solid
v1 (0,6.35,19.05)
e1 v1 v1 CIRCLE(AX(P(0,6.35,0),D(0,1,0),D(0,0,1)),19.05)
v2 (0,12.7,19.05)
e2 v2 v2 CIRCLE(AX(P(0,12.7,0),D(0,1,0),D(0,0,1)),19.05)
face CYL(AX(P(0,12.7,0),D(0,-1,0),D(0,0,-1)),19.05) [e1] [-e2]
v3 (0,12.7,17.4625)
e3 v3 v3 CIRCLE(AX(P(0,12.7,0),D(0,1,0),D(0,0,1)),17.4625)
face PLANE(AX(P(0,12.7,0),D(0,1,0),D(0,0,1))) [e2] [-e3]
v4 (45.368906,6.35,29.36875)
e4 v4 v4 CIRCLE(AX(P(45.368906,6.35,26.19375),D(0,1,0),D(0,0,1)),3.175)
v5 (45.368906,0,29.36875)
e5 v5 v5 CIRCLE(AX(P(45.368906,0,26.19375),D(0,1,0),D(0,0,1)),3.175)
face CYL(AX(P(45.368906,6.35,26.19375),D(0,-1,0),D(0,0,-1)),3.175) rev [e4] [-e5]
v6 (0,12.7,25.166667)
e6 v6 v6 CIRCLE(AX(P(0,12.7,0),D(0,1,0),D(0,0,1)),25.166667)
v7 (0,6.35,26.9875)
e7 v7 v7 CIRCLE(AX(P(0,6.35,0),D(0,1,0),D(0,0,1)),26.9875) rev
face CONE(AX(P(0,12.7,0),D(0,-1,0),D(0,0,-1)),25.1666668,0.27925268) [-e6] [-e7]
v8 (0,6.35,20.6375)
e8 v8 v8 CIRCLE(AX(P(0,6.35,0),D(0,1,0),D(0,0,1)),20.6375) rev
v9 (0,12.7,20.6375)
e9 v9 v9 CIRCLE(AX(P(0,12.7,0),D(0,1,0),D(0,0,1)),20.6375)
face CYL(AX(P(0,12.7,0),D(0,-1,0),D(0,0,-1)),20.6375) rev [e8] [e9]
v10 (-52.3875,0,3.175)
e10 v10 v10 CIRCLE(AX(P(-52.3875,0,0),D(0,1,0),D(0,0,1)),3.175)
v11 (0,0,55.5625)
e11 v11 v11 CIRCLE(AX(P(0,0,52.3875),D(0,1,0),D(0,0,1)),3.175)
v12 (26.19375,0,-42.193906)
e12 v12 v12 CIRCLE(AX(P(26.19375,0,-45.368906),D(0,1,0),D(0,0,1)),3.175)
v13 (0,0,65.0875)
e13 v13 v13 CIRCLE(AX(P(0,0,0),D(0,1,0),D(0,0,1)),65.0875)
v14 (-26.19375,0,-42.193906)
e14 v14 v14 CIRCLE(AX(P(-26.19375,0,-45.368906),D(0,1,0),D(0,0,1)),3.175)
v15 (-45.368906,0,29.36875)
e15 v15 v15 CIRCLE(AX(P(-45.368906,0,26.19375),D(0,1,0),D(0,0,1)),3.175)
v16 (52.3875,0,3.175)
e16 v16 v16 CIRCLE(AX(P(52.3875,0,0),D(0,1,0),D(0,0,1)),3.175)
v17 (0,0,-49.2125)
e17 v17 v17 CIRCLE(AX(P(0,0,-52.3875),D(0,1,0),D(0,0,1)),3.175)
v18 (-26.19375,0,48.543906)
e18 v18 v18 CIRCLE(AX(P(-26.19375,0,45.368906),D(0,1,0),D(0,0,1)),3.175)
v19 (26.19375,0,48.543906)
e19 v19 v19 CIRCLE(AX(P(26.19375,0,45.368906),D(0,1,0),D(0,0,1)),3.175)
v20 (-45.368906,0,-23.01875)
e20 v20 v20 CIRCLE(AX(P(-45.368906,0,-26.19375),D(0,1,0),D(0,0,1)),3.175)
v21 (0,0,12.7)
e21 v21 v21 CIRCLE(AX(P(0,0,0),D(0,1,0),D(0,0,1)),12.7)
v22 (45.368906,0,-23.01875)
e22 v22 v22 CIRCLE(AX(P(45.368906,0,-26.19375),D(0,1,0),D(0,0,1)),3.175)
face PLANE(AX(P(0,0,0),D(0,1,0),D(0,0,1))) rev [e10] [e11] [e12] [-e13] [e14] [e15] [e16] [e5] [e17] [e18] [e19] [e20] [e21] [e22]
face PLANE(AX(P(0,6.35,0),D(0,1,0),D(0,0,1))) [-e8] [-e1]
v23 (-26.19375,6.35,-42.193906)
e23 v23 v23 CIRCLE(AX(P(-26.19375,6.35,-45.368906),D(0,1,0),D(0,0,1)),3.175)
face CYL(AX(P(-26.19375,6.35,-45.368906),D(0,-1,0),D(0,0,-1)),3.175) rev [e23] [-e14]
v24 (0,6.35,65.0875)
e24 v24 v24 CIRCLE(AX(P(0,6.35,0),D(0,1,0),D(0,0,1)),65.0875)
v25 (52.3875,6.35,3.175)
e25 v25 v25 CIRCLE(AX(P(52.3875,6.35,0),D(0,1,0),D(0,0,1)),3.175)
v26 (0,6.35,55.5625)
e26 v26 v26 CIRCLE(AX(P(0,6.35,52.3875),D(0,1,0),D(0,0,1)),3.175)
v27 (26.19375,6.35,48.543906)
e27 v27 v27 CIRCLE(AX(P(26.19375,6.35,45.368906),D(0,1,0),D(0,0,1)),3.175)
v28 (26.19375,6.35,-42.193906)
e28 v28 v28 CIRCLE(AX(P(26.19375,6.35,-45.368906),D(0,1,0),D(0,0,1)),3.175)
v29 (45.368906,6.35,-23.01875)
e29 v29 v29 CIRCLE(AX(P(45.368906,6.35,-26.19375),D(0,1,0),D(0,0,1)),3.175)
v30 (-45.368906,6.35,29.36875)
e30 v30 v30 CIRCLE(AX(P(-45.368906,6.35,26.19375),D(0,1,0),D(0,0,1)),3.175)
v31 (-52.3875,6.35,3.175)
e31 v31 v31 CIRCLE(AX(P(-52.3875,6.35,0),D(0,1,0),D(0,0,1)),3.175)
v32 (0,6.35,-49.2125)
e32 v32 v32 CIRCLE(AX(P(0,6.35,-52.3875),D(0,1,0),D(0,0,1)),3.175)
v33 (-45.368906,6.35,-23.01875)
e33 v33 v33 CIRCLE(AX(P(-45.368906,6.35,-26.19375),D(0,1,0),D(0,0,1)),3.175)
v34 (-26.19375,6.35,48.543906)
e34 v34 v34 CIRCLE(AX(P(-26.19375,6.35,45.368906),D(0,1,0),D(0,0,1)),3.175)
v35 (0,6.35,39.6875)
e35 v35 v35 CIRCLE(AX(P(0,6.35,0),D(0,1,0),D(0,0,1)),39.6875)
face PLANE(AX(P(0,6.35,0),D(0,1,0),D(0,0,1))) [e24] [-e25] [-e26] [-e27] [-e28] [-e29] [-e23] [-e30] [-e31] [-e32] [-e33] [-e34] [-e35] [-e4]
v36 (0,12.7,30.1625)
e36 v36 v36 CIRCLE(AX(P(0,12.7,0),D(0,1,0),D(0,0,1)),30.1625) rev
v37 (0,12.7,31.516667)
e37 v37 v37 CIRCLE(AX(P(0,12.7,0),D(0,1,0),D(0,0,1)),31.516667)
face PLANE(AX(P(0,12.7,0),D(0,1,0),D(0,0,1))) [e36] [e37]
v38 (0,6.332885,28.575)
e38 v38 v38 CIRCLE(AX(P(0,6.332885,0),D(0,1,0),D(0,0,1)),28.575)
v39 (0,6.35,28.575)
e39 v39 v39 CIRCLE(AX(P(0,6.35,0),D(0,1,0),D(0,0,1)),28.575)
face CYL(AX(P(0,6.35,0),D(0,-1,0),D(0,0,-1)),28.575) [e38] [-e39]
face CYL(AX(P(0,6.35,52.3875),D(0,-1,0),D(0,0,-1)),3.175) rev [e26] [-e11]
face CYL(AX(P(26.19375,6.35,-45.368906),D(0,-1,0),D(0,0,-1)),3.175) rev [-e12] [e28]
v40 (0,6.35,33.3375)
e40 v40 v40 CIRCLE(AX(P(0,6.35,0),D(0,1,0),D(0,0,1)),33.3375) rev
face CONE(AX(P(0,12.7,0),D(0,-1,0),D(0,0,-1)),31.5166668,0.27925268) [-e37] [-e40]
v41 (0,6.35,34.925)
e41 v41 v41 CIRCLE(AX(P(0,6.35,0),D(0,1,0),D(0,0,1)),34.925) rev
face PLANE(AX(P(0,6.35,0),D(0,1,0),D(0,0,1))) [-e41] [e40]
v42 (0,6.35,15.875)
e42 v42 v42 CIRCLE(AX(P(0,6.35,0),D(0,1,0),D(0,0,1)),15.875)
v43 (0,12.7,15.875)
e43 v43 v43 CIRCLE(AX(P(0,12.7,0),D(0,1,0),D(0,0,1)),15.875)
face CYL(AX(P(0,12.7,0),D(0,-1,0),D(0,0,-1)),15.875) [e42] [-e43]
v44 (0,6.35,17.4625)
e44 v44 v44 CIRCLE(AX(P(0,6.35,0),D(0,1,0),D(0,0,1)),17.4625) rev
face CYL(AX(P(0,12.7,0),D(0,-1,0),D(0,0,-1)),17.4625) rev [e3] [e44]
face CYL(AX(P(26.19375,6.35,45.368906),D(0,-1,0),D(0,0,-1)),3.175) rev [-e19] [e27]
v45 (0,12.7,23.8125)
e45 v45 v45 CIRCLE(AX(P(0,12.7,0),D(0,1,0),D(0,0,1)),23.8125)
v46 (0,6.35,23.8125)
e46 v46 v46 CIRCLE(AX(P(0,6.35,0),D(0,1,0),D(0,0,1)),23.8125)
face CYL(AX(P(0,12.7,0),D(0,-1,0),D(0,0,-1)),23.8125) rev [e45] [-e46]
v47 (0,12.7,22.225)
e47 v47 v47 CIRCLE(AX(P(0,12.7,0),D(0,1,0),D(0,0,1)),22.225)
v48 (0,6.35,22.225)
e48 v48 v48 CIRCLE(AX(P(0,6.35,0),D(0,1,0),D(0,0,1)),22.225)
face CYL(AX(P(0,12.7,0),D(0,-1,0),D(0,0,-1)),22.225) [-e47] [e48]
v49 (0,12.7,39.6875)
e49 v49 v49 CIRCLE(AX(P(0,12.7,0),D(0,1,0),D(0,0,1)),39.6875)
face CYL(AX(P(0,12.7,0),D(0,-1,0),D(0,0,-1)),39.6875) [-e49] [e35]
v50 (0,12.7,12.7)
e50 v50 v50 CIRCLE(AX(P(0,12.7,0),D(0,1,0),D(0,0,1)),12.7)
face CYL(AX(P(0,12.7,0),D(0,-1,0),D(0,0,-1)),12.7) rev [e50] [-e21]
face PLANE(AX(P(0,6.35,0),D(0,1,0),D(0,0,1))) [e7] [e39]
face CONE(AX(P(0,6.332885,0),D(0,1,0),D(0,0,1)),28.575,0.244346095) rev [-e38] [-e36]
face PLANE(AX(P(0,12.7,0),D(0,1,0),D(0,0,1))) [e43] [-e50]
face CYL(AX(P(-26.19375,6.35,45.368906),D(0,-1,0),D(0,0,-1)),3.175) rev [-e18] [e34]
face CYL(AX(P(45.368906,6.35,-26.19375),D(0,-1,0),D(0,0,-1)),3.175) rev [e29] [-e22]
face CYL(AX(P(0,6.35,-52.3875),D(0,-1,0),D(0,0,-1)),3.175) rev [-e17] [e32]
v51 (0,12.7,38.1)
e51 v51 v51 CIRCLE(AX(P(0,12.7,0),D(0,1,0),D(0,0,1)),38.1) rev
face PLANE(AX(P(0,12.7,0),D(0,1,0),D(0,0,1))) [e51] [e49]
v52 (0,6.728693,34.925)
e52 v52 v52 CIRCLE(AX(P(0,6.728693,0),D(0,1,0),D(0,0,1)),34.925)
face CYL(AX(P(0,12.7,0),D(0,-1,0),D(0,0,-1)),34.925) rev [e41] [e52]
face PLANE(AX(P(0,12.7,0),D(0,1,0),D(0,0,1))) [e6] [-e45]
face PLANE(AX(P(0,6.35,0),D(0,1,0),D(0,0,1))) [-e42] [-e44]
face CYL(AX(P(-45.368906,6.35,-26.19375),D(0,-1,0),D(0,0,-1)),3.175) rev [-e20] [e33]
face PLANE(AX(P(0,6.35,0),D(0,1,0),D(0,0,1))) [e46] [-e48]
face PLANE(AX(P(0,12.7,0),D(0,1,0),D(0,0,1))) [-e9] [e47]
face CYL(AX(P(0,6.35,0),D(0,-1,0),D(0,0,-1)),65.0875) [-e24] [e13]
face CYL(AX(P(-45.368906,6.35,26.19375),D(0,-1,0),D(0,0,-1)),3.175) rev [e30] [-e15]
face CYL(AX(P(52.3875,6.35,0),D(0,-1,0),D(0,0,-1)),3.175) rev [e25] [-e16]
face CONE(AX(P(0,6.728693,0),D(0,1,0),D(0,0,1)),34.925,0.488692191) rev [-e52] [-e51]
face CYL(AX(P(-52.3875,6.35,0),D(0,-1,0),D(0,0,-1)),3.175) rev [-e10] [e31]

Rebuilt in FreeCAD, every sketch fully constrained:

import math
import FreeCAD as App
import Part
import Sketcher

V = App.Vector
Q = App.Units.Quantity


def edges_at(feature, points):
    """Names of the edges that pass closest to the given points."""
    edges = feature.Shape.Edges
    near = lambda p: min(range(len(edges)), key=lambda i: edges[i].distToShape(Part.Vertex(*p))[0])
    return sorted({f"Edge{near(p) + 1}" for p in points})

doc = App.newDocument("Part")
body = doc.addObject("PartDesign::Body", "Body")
body.AllowCompound = True

sketch1 = body.newObject("Sketcher::SketchObject", "Sketch")
sketch1.AttachmentSupport = (doc.getObject("XZ_Plane"), [""])
sketch1.MapMode = "FlatFace"
sketch1.addGeometry([
    Part.ArcOfCircle(Part.Circle(V(0, 0, 0), V(0, 0, 1), 39.6875), math.radians(23.578178), math.radians(336.421822)),
    Part.ArcOfCircle(Part.Circle(V(0, 0, 0), V(0, 0, 1), 39.6875), math.radians(18.662925), math.radians(23.578178)),
    Part.ArcOfCircle(Part.Circle(V(0, 0, 0), V(0, 0, 1), 39.6875), math.radians(0), math.radians(18.662925)),
    Part.ArcOfCircle(Part.Circle(V(0, 0, 0), V(0, 0, 1), 39.6875), math.radians(-18.662925), math.radians(0)),
    Part.ArcOfCircle(Part.Circle(V(0, 0, 0), V(0, 0, 1), 39.6875), math.radians(-23.578178), math.radians(-18.662925)),
    Part.ArcOfCircle(Part.Circle(V(0, 0, 0), V(0, 0, 1), 34.925), math.radians(-21.323686), math.radians(0)),
    Part.ArcOfCircle(Part.Circle(V(0, 0, 0), V(0, 0, 1), 34.925), math.radians(0), math.radians(21.323686)),
    Part.ArcOfCircle(Part.Circle(V(0, 0, 0), V(0, 0, 1), 34.925), math.radians(21.323686), math.radians(27.035692)),
    Part.ArcOfCircle(Part.Circle(V(0, 0, 0), V(0, 0, 1), 34.925), math.radians(27.035692), math.radians(332.964308)),
    Part.ArcOfCircle(Part.Circle(V(0, 0, 0), V(0, 0, 1), 34.925), math.radians(-27.035692), math.radians(-21.323686)),
    Part.ArcOfCircle(Part.Circle(V(0, 0, 0), V(0, 0, 1), 33.3375), math.radians(28.43689), math.radians(331.56311)),
    Part.ArcOfCircle(Part.Circle(V(0, 0, 0), V(0, 0, 1), 33.3375), math.radians(22.392688), math.radians(28.43689)),
    Part.ArcOfCircle(Part.Circle(V(0, 0, 0), V(0, 0, 1), 33.3375), math.radians(0), math.radians(22.392688)),
    Part.ArcOfCircle(Part.Circle(V(0, 0, 0), V(0, 0, 1), 33.3375), math.radians(-22.392688), math.radians(0)),
    Part.ArcOfCircle(Part.Circle(V(0, 0, 0), V(0, 0, 1), 33.3375), math.radians(-28.43689), math.radians(-22.392688)),
    Part.ArcOfCircle(Part.Circle(V(0, 0, 0), V(0, 0, 1), 28.575), math.radians(-26.3878), math.radians(0)),
    Part.ArcOfCircle(Part.Circle(V(0, 0, 0), V(0, 0, 1), 28.575), math.radians(0), math.radians(26.3878)),
    Part.ArcOfCircle(Part.Circle(V(0, 0, 0), V(0, 0, 1), 28.575), math.radians(26.3878), math.radians(33.748989)),
    Part.ArcOfCircle(Part.Circle(V(0, 0, 0), V(0, 0, 1), 28.575), math.radians(33.748989), math.radians(326.251011)),
    Part.ArcOfCircle(Part.Circle(V(0, 0, 0), V(0, 0, 1), 28.575), math.radians(-33.748989), math.radians(-26.3878)),
    Part.ArcOfCircle(Part.Circle(V(0, 0, 0), V(0, 0, 1), 26.9875), math.radians(36.031879), math.radians(323.968121)),
    Part.ArcOfCircle(Part.Circle(V(0, 0, 0), V(0, 0, 1), 26.9875), math.radians(28.072487), math.radians(36.031879)),
    Part.ArcOfCircle(Part.Circle(V(0, 0, 0), V(0, 0, 1), 26.9875), math.radians(0), math.radians(28.072487)),
    Part.ArcOfCircle(Part.Circle(V(0, 0, 0), V(0, 0, 1), 26.9875), math.radians(-28.072487), math.radians(0)),
    Part.ArcOfCircle(Part.Circle(V(0, 0, 0), V(0, 0, 1), 26.9875), math.radians(-36.031879), math.radians(-28.072487)),
    Part.ArcOfCircle(Part.Circle(V(0, 0, 0), V(0, 0, 1), 23.8125), math.radians(-32.230953), math.radians(0)),
    Part.ArcOfCircle(Part.Circle(V(0, 0, 0), V(0, 0, 1), 23.8125), math.radians(0), math.radians(32.230953)),
    Part.ArcOfCircle(Part.Circle(V(0, 0, 0), V(0, 0, 1), 23.8125), math.radians(32.230953), math.radians(41.810315)),
    Part.ArcOfCircle(Part.Circle(V(0, 0, 0), V(0, 0, 1), 23.8125), math.radians(41.810315), math.radians(318.189685)),
    Part.ArcOfCircle(Part.Circle(V(0, 0, 0), V(0, 0, 1), 23.8125), math.radians(-41.810315), math.radians(-32.230953)),
    Part.ArcOfCircle(Part.Circle(V(0, 0, 0), V(0, 0, 1), 15.875), math.radians(90), math.radians(270)),
    Part.ArcOfCircle(Part.Circle(V(0, 0, 0), V(0, 0, 1), 15.875), math.radians(53.130102), math.radians(90)),
    Part.ArcOfCircle(Part.Circle(V(0, 0, 0), V(0, 0, 1), 15.875), math.radians(0), math.radians(53.130102)),
    Part.ArcOfCircle(Part.Circle(V(0, 0, 0), V(0, 0, 1), 15.875), math.radians(-53.130102), math.radians(0)),
    Part.ArcOfCircle(Part.Circle(V(0, 0, 0), V(0, 0, 1), 15.875), math.radians(-90), math.radians(-53.130102)),
    Part.ArcOfCircle(Part.Circle(V(0, 0, 0), V(0, 0, 1), 12.7), math.radians(0), math.radians(90)),
    Part.ArcOfCircle(Part.Circle(V(0, 0, 0), V(0, 0, 1), 12.7), math.radians(90), math.radians(270)),
    Part.ArcOfCircle(Part.Circle(V(0, 0, 0), V(0, 0, 1), 12.7), math.radians(-90), math.radians(0)),
], False)
sketch1.addConstraint([
    Sketcher.Constraint("Tangent", 0, 1, 1, 2),
    Sketcher.Constraint("Tangent", 1, 1, 2, 2),
    Sketcher.Constraint("Tangent", 2, 1, 3, 2),
    Sketcher.Constraint("Tangent", 3, 1, 4, 2),
    Sketcher.Constraint("Tangent", 4, 1, 0, 2),
    Sketcher.Constraint("Tangent", 5, 2, 6, 1),
    Sketcher.Constraint("Tangent", 6, 2, 7, 1),
    Sketcher.Constraint("Tangent", 7, 2, 8, 1),
    Sketcher.Constraint("Tangent", 8, 2, 9, 1),
    Sketcher.Constraint("Tangent", 9, 2, 5, 1),
    Sketcher.Constraint("Tangent", 10, 1, 11, 2),
    Sketcher.Constraint("Tangent", 11, 1, 12, 2),
    Sketcher.Constraint("Tangent", 12, 1, 13, 2),
    Sketcher.Constraint("Tangent", 13, 1, 14, 2),
    Sketcher.Constraint("Tangent", 14, 1, 10, 2),
    Sketcher.Constraint("Tangent", 15, 2, 16, 1),
    Sketcher.Constraint("Tangent", 16, 2, 17, 1),
    Sketcher.Constraint("Tangent", 17, 2, 18, 1),
    Sketcher.Constraint("Tangent", 18, 2, 19, 1),
    Sketcher.Constraint("Tangent", 19, 2, 15, 1),
    Sketcher.Constraint("Tangent", 20, 1, 21, 2),
    Sketcher.Constraint("Tangent", 21, 1, 22, 2),
    Sketcher.Constraint("Tangent", 22, 1, 23, 2),
    Sketcher.Constraint("Tangent", 23, 1, 24, 2),
    Sketcher.Constraint("Tangent", 24, 1, 20, 2),
    Sketcher.Constraint("Tangent", 25, 2, 26, 1),
    Sketcher.Constraint("Tangent", 26, 2, 27, 1),
    Sketcher.Constraint("Tangent", 27, 2, 28, 1),
    Sketcher.Constraint("Tangent", 28, 2, 29, 1),
    Sketcher.Constraint("Tangent", 29, 2, 25, 1),
    Sketcher.Constraint("Tangent", 30, 1, 31, 2),
    Sketcher.Constraint("Tangent", 31, 1, 32, 2),
    Sketcher.Constraint("Tangent", 32, 1, 33, 2),
    Sketcher.Constraint("Tangent", 33, 1, 34, 2),
    Sketcher.Constraint("Tangent", 34, 1, 30, 2),
    Sketcher.Constraint("Tangent", 35, 2, 36, 1),
    Sketcher.Constraint("Tangent", 36, 2, 37, 1),
    Sketcher.Constraint("Tangent", 37, 2, 35, 1),
    Sketcher.Constraint("Coincident", 0, 3, -1, 1),
    Sketcher.Constraint("Coincident", 2, 3, -1, 1),
    Sketcher.Constraint("Coincident", 5, 3, -1, 1),
    Sketcher.Constraint("Coincident", 7, 3, -1, 1),
    Sketcher.Constraint("Coincident", 10, 3, -1, 1),
    Sketcher.Constraint("Coincident", 12, 3, -1, 1),
    Sketcher.Constraint("Coincident", 15, 3, -1, 1),
    Sketcher.Constraint("Coincident", 17, 3, -1, 1),
    Sketcher.Constraint("Coincident", 20, 3, -1, 1),
    Sketcher.Constraint("Coincident", 22, 3, -1, 1),
    Sketcher.Constraint("Coincident", 25, 3, -1, 1),
    Sketcher.Constraint("Coincident", 27, 3, -1, 1),
    Sketcher.Constraint("Coincident", 30, 3, -1, 1),
    Sketcher.Constraint("Coincident", 32, 3, -1, 1),
    Sketcher.Constraint("Coincident", 35, 3, -1, 1),
    Sketcher.Constraint("PointOnObject", 2, 1, -1),
    Sketcher.Constraint("PointOnObject", 5, 2, -1),
    Sketcher.Constraint("PointOnObject", 12, 1, -1),
    Sketcher.Constraint("PointOnObject", 15, 2, -1),
    Sketcher.Constraint("PointOnObject", 22, 1, -1),
    Sketcher.Constraint("PointOnObject", 25, 2, -1),
    Sketcher.Constraint("PointOnObject", 30, 1, -2),
    Sketcher.Constraint("PointOnObject", 32, 1, -1),
    Sketcher.Constraint("PointOnObject", 34, 1, -2),
    Sketcher.Constraint("PointOnObject", 35, 2, -2),
    Sketcher.Constraint("PointOnObject", 36, 2, -2),
    Sketcher.Constraint("PointOnObject", 37, 2, -1),
    Sketcher.Constraint("Horizontal", 1, 1, 6, 2),
    Sketcher.Constraint("Horizontal", 0, 1, 7, 2),
    Sketcher.Constraint("Horizontal", 4, 1, 8, 2),
    Sketcher.Constraint("Horizontal", 3, 1, 9, 2),
    Sketcher.Constraint("Horizontal", 7, 2, 10, 1),
    Sketcher.Constraint("Horizontal", 6, 2, 11, 1),
    Sketcher.Constraint("Horizontal", 9, 2, 13, 1),
    Sketcher.Constraint("Horizontal", 8, 2, 14, 1),
    Sketcher.Constraint("Horizontal", 11, 1, 16, 2),
    Sketcher.Constraint("Horizontal", 10, 1, 17, 2),
    Sketcher.Constraint("Horizontal", 14, 1, 18, 2),
    Sketcher.Constraint("Horizontal", 13, 1, 19, 2),
    Sketcher.Constraint("Horizontal", 17, 2, 20, 1),
    Sketcher.Constraint("Horizontal", 16, 2, 21, 1),
    Sketcher.Constraint("Horizontal", 19, 2, 23, 1),
    Sketcher.Constraint("Horizontal", 18, 2, 24, 1),
    Sketcher.Constraint("Horizontal", 21, 1, 26, 2),
    Sketcher.Constraint("Horizontal", 20, 1, 27, 2),
    Sketcher.Constraint("Horizontal", 24, 1, 28, 2),
    Sketcher.Constraint("Horizontal", 23, 1, 29, 2),
    Sketcher.Constraint("Horizontal", 27, 2, 30, 1),
    Sketcher.Constraint("Horizontal", 26, 2, 31, 1),
    Sketcher.Constraint("Horizontal", 29, 2, 33, 1),
    Sketcher.Constraint("Horizontal", 28, 2, 34, 1),
    Sketcher.Constraint("Horizontal", 31, 1, 35, 2),
    Sketcher.Constraint("Horizontal", 33, 1, 36, 2),
    Sketcher.Constraint("Vertical", 23, 1, 25, 2),
    Sketcher.Constraint("Radius", 35, Q("0.5 in")),
    Sketcher.Constraint("Radius", 0, Q("1.5625 in")),
    Sketcher.Constraint("Radius", 5, Q("1.375 in")),
    Sketcher.Constraint("Radius", 10, Q("1.3125 in")),
    Sketcher.Constraint("Radius", 15, Q("1.125 in")),
    Sketcher.Constraint("Radius", 20, Q("1.0625 in")),
    Sketcher.Constraint("Radius", 30, Q("0.625 in")),
])
pad1 = body.newObject("PartDesign::Pad", "Pad")
pad1.Profile = sketch1
pad1.Length = Q("0.5 in")
pad1.Reversed = True
doc.recompute()

chamfer = body.newObject("PartDesign::Chamfer", "Chamfer")
chamfer.Base = (pad1, edges_at(pad1, [(-34.925, 12.7, 0)]))
chamfer.ChamferType = "Two distances"
chamfer.Size = Q("0.125 in")
chamfer.Size2 = 5.971307
doc.recompute()

chamfer2 = body.newObject("PartDesign::Chamfer", "Chamfer001")
chamfer2.Base = (chamfer, edges_at(chamfer, [(-33.337, 12.7, 0)]))
chamfer2.ChamferType = "Two distances"
chamfer2.Size = Q("0.25 in")
chamfer2.Size2 = 1.820833
chamfer2.FlipDirection = True
doc.recompute()

chamfer3 = body.newObject("PartDesign::Chamfer", "Chamfer002")
chamfer3.Base = (chamfer2, edges_at(chamfer2, [(-28.575, 12.7, 0)]))
chamfer3.ChamferType = "Two distances"
chamfer3.Size = Q("0.0625 in")
chamfer3.Size2 = 6.367115
doc.recompute()

chamfer4 = body.newObject("PartDesign::Chamfer", "Chamfer003")
chamfer4.Base = (chamfer3, edges_at(chamfer3, [(-26.988, 12.7, 0)]))
chamfer4.ChamferType = "Two distances"
chamfer4.Size = Q("0.25 in")
chamfer4.Size2 = 1.820833
chamfer4.FlipDirection = True

sketch2 = body.newObject("Sketcher::SketchObject", "Sketch001")
sketch2.AttachmentSupport = (doc.getObject("XZ_Plane"), [""])
sketch2.MapMode = "FlatFace"
sketch2.addGeometry([
    Part.ArcOfCircle(Part.Circle(V(0, 0, 0), V(0, 0, 1), 65.0875), math.radians(14.116981), math.radians(345.883019)),
    Part.ArcOfCircle(Part.Circle(V(-0.000001, 0, 0), V(0, 0, 1), 65.087501), math.radians(11.251848), math.radians(14.116981)),
    Part.ArcOfCircle(Part.Circle(V(0, 0, 0), V(0, 0, 1), 65.0875), math.radians(0), math.radians(11.251848)),
    Part.ArcOfCircle(Part.Circle(V(0, 0, 0), V(0, 0, 1), 65.0875), math.radians(-11.251848), math.radians(0)),
    Part.ArcOfCircle(Part.Circle(V(-0.000001, 0, 0), V(0, 0, 1), 65.087501), math.radians(-14.116981), math.radians(-11.251848)),
    Part.ArcOfCircle(Part.Circle(V(0, 0, 0), V(0, 0, 1), 39.6875), math.radians(23.578178), math.radians(336.421822)),
    Part.ArcOfCircle(Part.Circle(V(0, 0, 0), V(0, 0, 1), 39.6875), math.radians(-23.578178), math.radians(-18.662925)),
    Part.ArcOfCircle(Part.Circle(V(0, 0, 0), V(0, 0, 1), 39.6875), math.radians(-18.662925), math.radians(0)),
    Part.ArcOfCircle(Part.Circle(V(0, 0, 0), V(0, 0, 1), 39.6875), math.radians(0), math.radians(18.662925)),
    Part.ArcOfCircle(Part.Circle(V(0, 0, 0), V(0, 0, 1), 39.6875), math.radians(18.662925), math.radians(23.578178)),
    Part.Circle(V(-26.19375, 45.368906, 0), V(0, 0, 1), 3.175),
    Part.Circle(V(-45.368906, 26.19375, 0), V(0, 0, 1), 3.175),
    Part.Circle(V(0, 52.3875, 0), V(0, 0, 1), 3.175),
    Part.Circle(V(26.19375, 45.368906, 0), V(0, 0, 1), 3.175),
    Part.Circle(V(45.368906, 26.19375, 0), V(0, 0, 1), 3.175),
    Part.Circle(V(-52.3875, 0, 0), V(0, 0, 1), 3.175),
    Part.Circle(V(-45.368906, -26.19375, 0), V(0, 0, 1), 3.175),
    Part.Circle(V(-26.19375, -45.368906, 0), V(0, 0, 1), 3.175),
    Part.Circle(V(45.368906, -26.19375, 0), V(0, 0, 1), 3.175),
    Part.Circle(V(0, -52.3875, 0), V(0, 0, 1), 3.175),
    Part.Circle(V(26.19375, -45.368906, 0), V(0, 0, 1), 3.175),
    Part.Circle(V(52.3875, 0, 0), V(0, 0, 1), 3.175),
    Part.ArcOfCircle(Part.Circle(V(0, 0, 0), V(0, 0, 1), 34.925), math.radians(27.035692), math.radians(332.964308)),
    Part.ArcOfCircle(Part.Circle(V(0, 0, 0), V(0, 0, 1), 34.925), math.radians(21.323686), math.radians(27.035692)),
    Part.ArcOfCircle(Part.Circle(V(0, 0, 0), V(0, 0, 1), 34.925), math.radians(0), math.radians(21.323686)),
    Part.ArcOfCircle(Part.Circle(V(0, 0, 0), V(0, 0, 1), 34.925), math.radians(-21.323686), math.radians(0)),
    Part.ArcOfCircle(Part.Circle(V(0, 0, 0), V(0, 0, 1), 34.925), math.radians(-27.035692), math.radians(-21.323686)),
    Part.ArcOfCircle(Part.Circle(V(0, 0, 0), V(0, 0, 1), 33.3375), math.radians(28.43689), math.radians(331.56311)),
    Part.ArcOfCircle(Part.Circle(V(0, 0, 0), V(0, 0, 1), 33.3375), math.radians(-28.43689), math.radians(-22.392688)),
    Part.ArcOfCircle(Part.Circle(V(0, 0, 0), V(0, 0, 1), 33.3375), math.radians(-22.392688), math.radians(0)),
    Part.ArcOfCircle(Part.Circle(V(0, 0, 0), V(0, 0, 1), 33.3375), math.radians(0), math.radians(22.392688)),
    Part.ArcOfCircle(Part.Circle(V(0, 0, 0), V(0, 0, 1), 33.3375), math.radians(22.392688), math.radians(28.43689)),
    Part.ArcOfCircle(Part.Circle(V(0, 0, 0), V(0, 0, 1), 28.575), math.radians(33.748989), math.radians(326.251011)),
    Part.ArcOfCircle(Part.Circle(V(0, 0, 0), V(0, 0, 1), 28.575), math.radians(26.3878), math.radians(33.748989)),
    Part.ArcOfCircle(Part.Circle(V(0, 0, 0), V(0, 0, 1), 28.575), math.radians(0), math.radians(26.3878)),
    Part.ArcOfCircle(Part.Circle(V(0, 0, 0), V(0, 0, 1), 28.575), math.radians(-26.3878), math.radians(0)),
    Part.ArcOfCircle(Part.Circle(V(0, 0, 0), V(0, 0, 1), 28.575), math.radians(-33.748989), math.radians(-26.3878)),
    Part.ArcOfCircle(Part.Circle(V(0, 0, 0), V(0, 0, 1), 26.9875), math.radians(36.031879), math.radians(323.968121)),
    Part.ArcOfCircle(Part.Circle(V(0, 0, 0), V(0, 0, 1), 26.9875), math.radians(-36.031879), math.radians(-28.072487)),
    Part.ArcOfCircle(Part.Circle(V(0, 0, 0), V(0, 0, 1), 26.9875), math.radians(-28.072487), math.radians(0)),
    Part.ArcOfCircle(Part.Circle(V(0, 0, 0), V(0, 0, 1), 26.9875), math.radians(0), math.radians(28.072487)),
    Part.ArcOfCircle(Part.Circle(V(0, 0, 0), V(0, 0, 1), 26.9875), math.radians(28.072487), math.radians(36.031879)),
    Part.ArcOfCircle(Part.Circle(V(0, 0, 0), V(0, 0, 1), 23.8125), math.radians(32.230953), math.radians(41.810315)),
    Part.ArcOfCircle(Part.Circle(V(0, 0, 0), V(0, 0, 1), 23.8125), math.radians(0), math.radians(32.230953)),
    Part.ArcOfCircle(Part.Circle(V(0, 0, 0), V(0, 0, 1), 23.8125), math.radians(-32.230953), math.radians(0)),
    Part.ArcOfCircle(Part.Circle(V(0, 0, 0), V(0, 0, 1), 23.8125), math.radians(-41.810315), math.radians(-32.230953)),
    Part.ArcOfCircle(Part.Circle(V(0, 0, 0), V(0, 0, 1), 23.8125), math.radians(41.810315), math.radians(318.189685)),
    Part.ArcOfCircle(Part.Circle(V(0, 0, 0), V(0, 0, 1), 22.225), math.radians(34.849905), math.radians(45.584691)),
    Part.ArcOfCircle(Part.Circle(V(0, 0, 0), V(0, 0, 1), 22.225), math.radians(45.584691), math.radians(314.415309)),
    Part.ArcOfCircle(Part.Circle(V(0, 0, 0), V(0, 0, 1), 22.225), math.radians(-45.584691), math.radians(-34.849905)),
    Part.ArcOfCircle(Part.Circle(V(0, 0, 0), V(0, 0, 1), 22.225), math.radians(-34.849905), math.radians(0)),
    Part.ArcOfCircle(Part.Circle(V(0, 0, 0), V(0, 0, 1), 22.225), math.radians(0), math.radians(34.849905)),
    Part.ArcOfCircle(Part.Circle(V(0, 0, 0), V(0, 0, 1), 20.6375), math.radians(37.979872), math.radians(50.284863)),
    Part.ArcOfCircle(Part.Circle(V(0, 0, 0), V(0, 0, 1), 20.6375), math.radians(0), math.radians(37.979872)),
    Part.ArcOfCircle(Part.Circle(V(0, 0, 0), V(0, 0, 1), 20.6375), math.radians(-37.979872), math.radians(0)),
    Part.ArcOfCircle(Part.Circle(V(0, 0, 0), V(0, 0, 1), 20.6375), math.radians(-50.284863), math.radians(-37.979872)),
    Part.ArcOfCircle(Part.Circle(V(0, 0, 0), V(0, 0, 1), 20.6375), math.radians(50.284863), math.radians(309.715137)),
    Part.ArcOfCircle(Part.Circle(V(0, 0, 0), V(0, 0, 1), 19.05), math.radians(41.810315), math.radians(56.44269)),
    Part.ArcOfCircle(Part.Circle(V(0, 0, 0), V(0, 0, 1), 19.05), math.radians(56.44269), math.radians(303.55731)),
    Part.ArcOfCircle(Part.Circle(V(0, 0, 0), V(0, 0, 1), 19.05), math.radians(-56.44269), math.radians(-41.810315)),
    Part.ArcOfCircle(Part.Circle(V(0, 0, 0), V(0, 0, 1), 19.05), math.radians(-41.810315), math.radians(0)),
    Part.ArcOfCircle(Part.Circle(V(0, 0, 0), V(0, 0, 1), 19.05), math.radians(0), math.radians(41.810315)),
    Part.ArcOfCircle(Part.Circle(V(0, 0, 0), V(0, 0, 1), 17.4625), math.radians(46.658242), math.radians(65.380023)),
    Part.ArcOfCircle(Part.Circle(V(0, 0, 0), V(0, 0, 1), 17.4625), math.radians(0), math.radians(46.658242)),
    Part.ArcOfCircle(Part.Circle(V(0, 0, 0), V(0, 0, 1), 17.4625), math.radians(-46.658242), math.radians(0)),
    Part.ArcOfCircle(Part.Circle(V(0, 0, 0), V(0, 0, 1), 17.4625), math.radians(-65.380023), math.radians(-46.658242)),
    Part.ArcOfCircle(Part.Circle(V(0, 0, 0), V(0, 0, 1), 17.4625), math.radians(65.380023), math.radians(294.619977)),
    Part.ArcOfCircle(Part.Circle(V(0, 0, 0), V(0, 0, 1), 15.875), math.radians(53.130102), math.radians(90)),
    Part.ArcOfCircle(Part.Circle(V(0, 0, 0), V(0, 0, 1), 15.875), math.radians(90), math.radians(270)),
    Part.ArcOfCircle(Part.Circle(V(0, 0, 0), V(0, 0, 1), 15.875), math.radians(-90), math.radians(-53.130102)),
    Part.ArcOfCircle(Part.Circle(V(0, 0, 0), V(0, 0, 1), 15.875), math.radians(-53.130102), math.radians(0)),
    Part.ArcOfCircle(Part.Circle(V(0, 0, 0), V(0, 0, 1), 15.875), math.radians(0), math.radians(53.130102)),
], False)
sketch2.addConstraint([
    Sketcher.Constraint("Tangent", 0, 1, 1, 2),
    Sketcher.Constraint("Tangent", 1, 1, 2, 2),
    Sketcher.Constraint("Tangent", 2, 1, 3, 2),
    Sketcher.Constraint("Tangent", 3, 1, 4, 2),
    Sketcher.Constraint("Coincident", 4, 1, 0, 2),
    Sketcher.Constraint("Tangent", 5, 2, 6, 1),
    Sketcher.Constraint("Tangent", 6, 2, 7, 1),
    Sketcher.Constraint("Tangent", 7, 2, 8, 1),
    Sketcher.Constraint("Tangent", 8, 2, 9, 1),
    Sketcher.Constraint("Tangent", 9, 2, 5, 1),
    Sketcher.Constraint("Tangent", 22, 1, 23, 2),
    Sketcher.Constraint("Tangent", 23, 1, 24, 2),
    Sketcher.Constraint("Tangent", 24, 1, 25, 2),
    Sketcher.Constraint("Tangent", 25, 1, 26, 2),
    Sketcher.Constraint("Tangent", 26, 1, 22, 2),
    Sketcher.Constraint("Tangent", 27, 2, 28, 1),
    Sketcher.Constraint("Tangent", 28, 2, 29, 1),
    Sketcher.Constraint("Tangent", 29, 2, 30, 1),
    Sketcher.Constraint("Tangent", 30, 2, 31, 1),
    Sketcher.Constraint("Tangent", 31, 2, 27, 1),
    Sketcher.Constraint("Tangent", 32, 1, 33, 2),
    Sketcher.Constraint("Tangent", 33, 1, 34, 2),
    Sketcher.Constraint("Tangent", 34, 1, 35, 2),
    Sketcher.Constraint("Tangent", 35, 1, 36, 2),
    Sketcher.Constraint("Tangent", 36, 1, 32, 2),
    Sketcher.Constraint("Tangent", 37, 2, 38, 1),
    Sketcher.Constraint("Tangent", 38, 2, 39, 1),
    Sketcher.Constraint("Tangent", 39, 2, 40, 1),
    Sketcher.Constraint("Tangent", 40, 2, 41, 1),
    Sketcher.Constraint("Tangent", 41, 2, 37, 1),
    Sketcher.Constraint("Tangent", 42, 1, 43, 2),
    Sketcher.Constraint("Tangent", 43, 1, 44, 2),
    Sketcher.Constraint("Tangent", 44, 1, 45, 2),
    Sketcher.Constraint("Tangent", 45, 1, 46, 2),
    Sketcher.Constraint("Tangent", 46, 1, 42, 2),
    Sketcher.Constraint("Tangent", 47, 2, 48, 1),
    Sketcher.Constraint("Tangent", 48, 2, 49, 1),
    Sketcher.Constraint("Tangent", 49, 2, 50, 1),
    Sketcher.Constraint("Tangent", 50, 2, 51, 1),
    Sketcher.Constraint("Tangent", 51, 2, 47, 1),
    Sketcher.Constraint("Tangent", 52, 1, 53, 2),
    Sketcher.Constraint("Tangent", 53, 1, 54, 2),
    Sketcher.Constraint("Tangent", 54, 1, 55, 2),
    Sketcher.Constraint("Tangent", 55, 1, 56, 2),
    Sketcher.Constraint("Tangent", 56, 1, 52, 2),
    Sketcher.Constraint("Tangent", 57, 2, 58, 1),
    Sketcher.Constraint("Tangent", 58, 2, 59, 1),
    Sketcher.Constraint("Tangent", 59, 2, 60, 1),
    Sketcher.Constraint("Tangent", 60, 2, 61, 1),
    Sketcher.Constraint("Tangent", 61, 2, 57, 1),
    Sketcher.Constraint("Tangent", 62, 1, 63, 2),
    Sketcher.Constraint("Tangent", 63, 1, 64, 2),
    Sketcher.Constraint("Tangent", 64, 1, 65, 2),
    Sketcher.Constraint("Tangent", 65, 1, 66, 2),
    Sketcher.Constraint("Tangent", 66, 1, 62, 2),
    Sketcher.Constraint("Tangent", 67, 2, 68, 1),
    Sketcher.Constraint("Tangent", 68, 2, 69, 1),
    Sketcher.Constraint("Tangent", 69, 2, 70, 1),
    Sketcher.Constraint("Tangent", 70, 2, 71, 1),
    Sketcher.Constraint("Tangent", 71, 2, 67, 1),
    Sketcher.Constraint("Coincident", 0, 3, -1, 1),
    Sketcher.Constraint("Coincident", 2, 3, -1, 1),
    Sketcher.Constraint("Coincident", 5, 3, -1, 1),
    Sketcher.Constraint("Coincident", 7, 3, -1, 1),
    Sketcher.Constraint("Coincident", 22, 3, -1, 1),
    Sketcher.Constraint("Coincident", 24, 3, -1, 1),
    Sketcher.Constraint("Coincident", 27, 3, -1, 1),
    Sketcher.Constraint("Coincident", 29, 3, -1, 1),
    Sketcher.Constraint("Coincident", 32, 3, -1, 1),
    Sketcher.Constraint("Coincident", 34, 3, -1, 1),
    Sketcher.Constraint("Coincident", 37, 3, -1, 1),
    Sketcher.Constraint("Coincident", 39, 3, -1, 1),
    Sketcher.Constraint("Coincident", 42, 3, -1, 1),
    Sketcher.Constraint("Coincident", 44, 3, -1, 1),
    Sketcher.Constraint("Coincident", 47, 3, -1, 1),
    Sketcher.Constraint("Coincident", 49, 3, -1, 1),
    Sketcher.Constraint("Coincident", 52, 3, -1, 1),
    Sketcher.Constraint("Coincident", 54, 3, -1, 1),
    Sketcher.Constraint("Coincident", 57, 3, -1, 1),
    Sketcher.Constraint("Coincident", 59, 3, -1, 1),
    Sketcher.Constraint("Coincident", 62, 3, -1, 1),
    Sketcher.Constraint("Coincident", 64, 3, -1, 1),
    Sketcher.Constraint("Coincident", 67, 3, -1, 1),
    Sketcher.Constraint("Coincident", 70, 3, -1, 1),
    Sketcher.Constraint("Equal", 2, 3),
    Sketcher.Constraint("Equal", 10, 11),
    Sketcher.Constraint("Equal", 11, 12),
    Sketcher.Constraint("Equal", 12, 13),
    Sketcher.Constraint("Equal", 13, 14),
    Sketcher.Constraint("Equal", 14, 15),
    Sketcher.Constraint("Equal", 15, 16),
    Sketcher.Constraint("Equal", 16, 17),
    Sketcher.Constraint("Equal", 17, 18),
    Sketcher.Constraint("Equal", 18, 19),
    Sketcher.Constraint("Equal", 19, 20),
    Sketcher.Constraint("Equal", 20, 21),
    Sketcher.Constraint("Symmetric", 14, 3, 16, 3, -1, 1),
    Sketcher.Constraint("Symmetric", 13, 3, 17, 3, -1, 1),
    Sketcher.Constraint("Symmetric", 11, 3, 18, 3, -1, 1),
    Sketcher.Constraint("Symmetric", 12, 3, 19, 3, -1, 1),
    Sketcher.Constraint("Symmetric", 10, 3, 20, 3, -1, 1),
    Sketcher.Constraint("Symmetric", 15, 3, 21, 3, -1, 1),
    Sketcher.Constraint("Symmetric", 10, 3, 13, 3, -2),
    Sketcher.Constraint("Symmetric", 11, 3, 14, 3, -2),
    Sketcher.Constraint("PointOnObject", 12, 3, -2),
    Sketcher.Constraint("PointOnObject", 15, 3, -1),
    Sketcher.Constraint("PointOnObject", 2, 1, -1),
    Sketcher.Constraint("PointOnObject", 7, 2, -1),
    Sketcher.Constraint("PointOnObject", 24, 1, -1),
    Sketcher.Constraint("PointOnObject", 29, 2, -1),
    Sketcher.Constraint("PointOnObject", 34, 1, -1),
    Sketcher.Constraint("PointOnObject", 39, 2, -1),
    Sketcher.Constraint("PointOnObject", 43, 1, -1),
    Sketcher.Constraint("PointOnObject", 50, 2, -1),
    Sketcher.Constraint("PointOnObject", 53, 1, -1),
    Sketcher.Constraint("PointOnObject", 60, 2, -1),
    Sketcher.Constraint("PointOnObject", 63, 1, -1),
    Sketcher.Constraint("PointOnObject", 67, 2, -2),
    Sketcher.Constraint("PointOnObject", 68, 2, -2),
    Sketcher.Constraint("PointOnObject", 70, 2, -1),
    Sketcher.Constraint("Horizontal", 4, 1, 5, 2),
    Sketcher.Constraint("Horizontal", 3, 1, 6, 2),
    Sketcher.Constraint("Horizontal", 1, 1, 8, 2),
    Sketcher.Constraint("Horizontal", 0, 1, 9, 2),
    Sketcher.Constraint("Horizontal", 9, 2, 22, 1),
    Sketcher.Constraint("Horizontal", 8, 2, 23, 1),
    Sketcher.Constraint("Horizontal", 6, 2, 25, 1),
    Sketcher.Constraint("Horizontal", 5, 2, 26, 1),
    Sketcher.Constraint("Horizontal", 26, 1, 27, 2),
    Sketcher.Constraint("Horizontal", 25, 1, 28, 2),
    Sketcher.Constraint("Horizontal", 23, 1, 30, 2),
    Sketcher.Constraint("Horizontal", 22, 1, 31, 2),
    Sketcher.Constraint("Horizontal", 31, 2, 32, 1),
    Sketcher.Constraint("Horizontal", 30, 2, 33, 1),
    Sketcher.Constraint("Horizontal", 28, 2, 35, 1),
    Sketcher.Constraint("Horizontal", 27, 2, 36, 1),
    Sketcher.Constraint("Horizontal", 36, 1, 37, 2),
    Sketcher.Constraint("Horizontal", 35, 1, 38, 2),
    Sketcher.Constraint("Horizontal", 33, 1, 40, 2),
    Sketcher.Constraint("Horizontal", 32, 1, 41, 2),
    Sketcher.Constraint("Horizontal", 40, 2, 42, 1),
    Sketcher.Constraint("Horizontal", 38, 2, 44, 1),
    Sketcher.Constraint("Horizontal", 37, 2, 45, 1),
    Sketcher.Constraint("Horizontal", 41, 2, 46, 1),
    Sketcher.Constraint("Horizontal", 46, 1, 47, 2),
    Sketcher.Constraint("Horizontal", 45, 1, 48, 2),
    Sketcher.Constraint("Horizontal", 44, 1, 49, 2),
    Sketcher.Constraint("Horizontal", 42, 1, 51, 2),
    Sketcher.Constraint("Horizontal", 51, 2, 52, 1),
    Sketcher.Constraint("Horizontal", 49, 2, 54, 1),
    Sketcher.Constraint("Horizontal", 48, 2, 55, 1),
    Sketcher.Constraint("Horizontal", 47, 2, 56, 1),
    Sketcher.Constraint("Horizontal", 56, 1, 57, 2),
    Sketcher.Constraint("Horizontal", 55, 1, 58, 2),
    Sketcher.Constraint("Horizontal", 54, 1, 59, 2),
    Sketcher.Constraint("Horizontal", 52, 1, 61, 2),
    Sketcher.Constraint("Horizontal", 61, 2, 62, 1),
    Sketcher.Constraint("Horizontal", 59, 2, 64, 1),
    Sketcher.Constraint("Horizontal", 58, 2, 65, 1),
    Sketcher.Constraint("Horizontal", 57, 2, 66, 1),
    Sketcher.Constraint("Horizontal", 66, 1, 67, 2),
    Sketcher.Constraint("Horizontal", 65, 1, 68, 2),
    Sketcher.Constraint("Horizontal", 64, 1, 69, 2),
    Sketcher.Constraint("Horizontal", 62, 1, 71, 2),
    Sketcher.Constraint("Vertical", 1, 1, 3, 1),
    Sketcher.Constraint("Vertical", 40, 2, 43, 1),
    Sketcher.Constraint("Diameter", 10, Q("0.25 in")),
    Sketcher.Constraint("Radius", 57, Q("0.75 in")),
    Sketcher.Constraint("Radius", 0, Q("2.5625 in")),
    Sketcher.Constraint("Radius", 5, Q("1.5625 in")),
    Sketcher.Constraint("Radius", 22, Q("1.375 in")),
    Sketcher.Constraint("Radius", 27, Q("1.3125 in")),
    Sketcher.Constraint("Radius", 32, Q("1.125 in")),
    Sketcher.Constraint("Radius", 37, Q("1.0625 in")),
    Sketcher.Constraint("Radius", 42, Q("0.9375 in")),
    Sketcher.Constraint("Radius", 47, Q("0.875 in")),
    Sketcher.Constraint("Radius", 52, Q("0.8125 in")),
    Sketcher.Constraint("Radius", 62, Q("0.6875 in")),
    Sketcher.Constraint("Radius", 67, Q("0.625 in")),
    Sketcher.Constraint("DistanceX", 10, 3, -1, 1, Q("1.03125 in")),
    Sketcher.Constraint("DistanceY", -1, 1, 11, 3, Q("1.03125 in")),
    Sketcher.Constraint("DistanceY", -1, 1, 12, 3, Q("2.0625 in")),
    Sketcher.Constraint("DistanceX", 15, 3, -1, 1, Q("2.0625 in")),
    Sketcher.Constraint("DistanceY", -1, 1, 10, 3, 45.368906),
    Sketcher.Constraint("DistanceX", 11, 3, -1, 1, 45.368906),
])
pad2 = body.newObject("PartDesign::Pad", "Pad001")
pad2.Profile = sketch2
pad2.Length = Q("0.25 in")
pad2.Reversed = True

sketch3 = body.newObject("Sketcher::SketchObject", "Sketch002")
sketch3.AttachmentSupport = (doc.getObject("XZ_Plane"), [""])
sketch3.MapMode = "FlatFace"
sketch3.addGeometry([
    Part.ArcOfCircle(Part.Circle(V(0, 0, 0), V(0, 0, 1), 19.05), math.radians(56.44269), math.radians(303.55731)),
    Part.ArcOfCircle(Part.Circle(V(0, 0, 0), V(0, 0, 1), 19.05), math.radians(41.810315), math.radians(56.44269)),
    Part.ArcOfCircle(Part.Circle(V(0, 0, 0), V(0, 0, 1), 19.05), math.radians(0), math.radians(41.810315)),
    Part.ArcOfCircle(Part.Circle(V(0, 0, 0), V(0, 0, 1), 19.05), math.radians(-41.810315), math.radians(0)),
    Part.ArcOfCircle(Part.Circle(V(0, 0, 0), V(0, 0, 1), 19.05), math.radians(-56.44269), math.radians(-41.810315)),
    Part.ArcOfCircle(Part.Circle(V(0, 0, 0), V(0, 0, 1), 17.4625), math.radians(-46.658242), math.radians(0)),
    Part.ArcOfCircle(Part.Circle(V(0, 0, 0), V(0, 0, 1), 17.4625), math.radians(0), math.radians(46.658242)),
    Part.ArcOfCircle(Part.Circle(V(0, 0, 0), V(0, 0, 1), 17.4625), math.radians(46.658242), math.radians(65.380023)),
    Part.ArcOfCircle(Part.Circle(V(0, 0, 0), V(0, 0, 1), 17.4625), math.radians(65.380023), math.radians(294.619977)),
    Part.ArcOfCircle(Part.Circle(V(0, 0, 0), V(0, 0, 1), 17.4625), math.radians(-65.380023), math.radians(-46.658242)),
    Part.ArcOfCircle(Part.Circle(V(0, 0, 0), V(0, 0, 1), 22.225), math.radians(45.584691), math.radians(314.415309)),
    Part.ArcOfCircle(Part.Circle(V(0, 0, 0), V(0, 0, 1), 22.225), math.radians(34.849905), math.radians(45.584691)),
    Part.ArcOfCircle(Part.Circle(V(0, 0, 0), V(0, 0, 1), 22.225), math.radians(0), math.radians(34.849905)),
    Part.ArcOfCircle(Part.Circle(V(0, 0, 0), V(0, 0, 1), 22.225), math.radians(-34.849905), math.radians(0)),
    Part.ArcOfCircle(Part.Circle(V(0, 0, 0), V(0, 0, 1), 22.225), math.radians(-45.584691), math.radians(-34.849905)),
    Part.ArcOfCircle(Part.Circle(V(0, 0, 0), V(0, 0, 1), 20.6375), math.radians(-37.979872), math.radians(0)),
    Part.ArcOfCircle(Part.Circle(V(0, 0, 0), V(0, 0, 1), 20.6375), math.radians(0), math.radians(37.979872)),
    Part.ArcOfCircle(Part.Circle(V(0, 0, 0), V(0, 0, 1), 20.6375), math.radians(37.979872), math.radians(50.284863)),
    Part.ArcOfCircle(Part.Circle(V(0, 0, 0), V(0, 0, 1), 20.6375), math.radians(50.284863), math.radians(309.715137)),
    Part.ArcOfCircle(Part.Circle(V(0, 0, 0), V(0, 0, 1), 20.6375), math.radians(-50.284863), math.radians(-37.979872)),
], False)
sketch3.addConstraint([
    Sketcher.Constraint("Tangent", 0, 1, 1, 2),
    Sketcher.Constraint("Tangent", 1, 1, 2, 2),
    Sketcher.Constraint("Tangent", 2, 1, 3, 2),
    Sketcher.Constraint("Tangent", 3, 1, 4, 2),
    Sketcher.Constraint("Tangent", 4, 1, 0, 2),
    Sketcher.Constraint("Tangent", 5, 2, 6, 1),
    Sketcher.Constraint("Tangent", 6, 2, 7, 1),
    Sketcher.Constraint("Tangent", 7, 2, 8, 1),
    Sketcher.Constraint("Tangent", 8, 2, 9, 1),
    Sketcher.Constraint("Tangent", 9, 2, 5, 1),
    Sketcher.Constraint("Tangent", 10, 1, 11, 2),
    Sketcher.Constraint("Tangent", 11, 1, 12, 2),
    Sketcher.Constraint("Tangent", 12, 1, 13, 2),
    Sketcher.Constraint("Tangent", 13, 1, 14, 2),
    Sketcher.Constraint("Tangent", 14, 1, 10, 2),
    Sketcher.Constraint("Tangent", 15, 2, 16, 1),
    Sketcher.Constraint("Tangent", 16, 2, 17, 1),
    Sketcher.Constraint("Tangent", 17, 2, 18, 1),
    Sketcher.Constraint("Tangent", 18, 2, 19, 1),
    Sketcher.Constraint("Tangent", 19, 2, 15, 1),
    Sketcher.Constraint("Coincident", 0, 3, -1, 1),
    Sketcher.Constraint("Coincident", 2, 3, -1, 1),
    Sketcher.Constraint("Coincident", 5, 3, -1, 1),
    Sketcher.Constraint("Coincident", 7, 3, -1, 1),
    Sketcher.Constraint("Coincident", 10, 3, -1, 1),
    Sketcher.Constraint("Coincident", 12, 3, -1, 1),
    Sketcher.Constraint("Coincident", 15, 3, -1, 1),
    Sketcher.Constraint("Coincident", 17, 3, -1, 1),
    Sketcher.Constraint("PointOnObject", 2, 1, -1),
    Sketcher.Constraint("PointOnObject", 5, 2, -1),
    Sketcher.Constraint("PointOnObject", 12, 1, -1),
    Sketcher.Constraint("PointOnObject", 15, 2, -1),
    Sketcher.Constraint("Horizontal", 1, 1, 6, 2),
    Sketcher.Constraint("Horizontal", 0, 1, 7, 2),
    Sketcher.Constraint("Horizontal", 4, 1, 8, 2),
    Sketcher.Constraint("Horizontal", 3, 1, 9, 2),
    Sketcher.Constraint("Horizontal", 7, 2, 10, 1),
    Sketcher.Constraint("Horizontal", 6, 2, 11, 1),
    Sketcher.Constraint("Horizontal", 9, 2, 13, 1),
    Sketcher.Constraint("Horizontal", 8, 2, 14, 1),
    Sketcher.Constraint("Horizontal", 11, 1, 16, 2),
    Sketcher.Constraint("Horizontal", 10, 1, 17, 2),
    Sketcher.Constraint("Horizontal", 14, 1, 18, 2),
    Sketcher.Constraint("Horizontal", 13, 1, 19, 2),
    Sketcher.Constraint("Vertical", 1, 1, 3, 1),
    Sketcher.Constraint("Vertical", 0, 1, 4, 1),
    Sketcher.Constraint("Radius", 0, Q("0.75 in")),
    Sketcher.Constraint("Radius", 5, Q("0.6875 in")),
    Sketcher.Constraint("Radius", 10, Q("0.875 in")),
    Sketcher.Constraint("Radius", 15, Q("0.8125 in")),
    Sketcher.Constraint("DistanceY", -1, 1, 1, 1, Q("0.5 in")),
    Sketcher.Constraint("DistanceY", -1, 1, 0, 1, Q("0.625 in")),
])
pad3 = body.newObject("PartDesign::Pad", "Pad002")
pad3.Profile = sketch3
pad3.Length = Q("0.5 in")
pad3.Reversed = True

doc.recompute()
